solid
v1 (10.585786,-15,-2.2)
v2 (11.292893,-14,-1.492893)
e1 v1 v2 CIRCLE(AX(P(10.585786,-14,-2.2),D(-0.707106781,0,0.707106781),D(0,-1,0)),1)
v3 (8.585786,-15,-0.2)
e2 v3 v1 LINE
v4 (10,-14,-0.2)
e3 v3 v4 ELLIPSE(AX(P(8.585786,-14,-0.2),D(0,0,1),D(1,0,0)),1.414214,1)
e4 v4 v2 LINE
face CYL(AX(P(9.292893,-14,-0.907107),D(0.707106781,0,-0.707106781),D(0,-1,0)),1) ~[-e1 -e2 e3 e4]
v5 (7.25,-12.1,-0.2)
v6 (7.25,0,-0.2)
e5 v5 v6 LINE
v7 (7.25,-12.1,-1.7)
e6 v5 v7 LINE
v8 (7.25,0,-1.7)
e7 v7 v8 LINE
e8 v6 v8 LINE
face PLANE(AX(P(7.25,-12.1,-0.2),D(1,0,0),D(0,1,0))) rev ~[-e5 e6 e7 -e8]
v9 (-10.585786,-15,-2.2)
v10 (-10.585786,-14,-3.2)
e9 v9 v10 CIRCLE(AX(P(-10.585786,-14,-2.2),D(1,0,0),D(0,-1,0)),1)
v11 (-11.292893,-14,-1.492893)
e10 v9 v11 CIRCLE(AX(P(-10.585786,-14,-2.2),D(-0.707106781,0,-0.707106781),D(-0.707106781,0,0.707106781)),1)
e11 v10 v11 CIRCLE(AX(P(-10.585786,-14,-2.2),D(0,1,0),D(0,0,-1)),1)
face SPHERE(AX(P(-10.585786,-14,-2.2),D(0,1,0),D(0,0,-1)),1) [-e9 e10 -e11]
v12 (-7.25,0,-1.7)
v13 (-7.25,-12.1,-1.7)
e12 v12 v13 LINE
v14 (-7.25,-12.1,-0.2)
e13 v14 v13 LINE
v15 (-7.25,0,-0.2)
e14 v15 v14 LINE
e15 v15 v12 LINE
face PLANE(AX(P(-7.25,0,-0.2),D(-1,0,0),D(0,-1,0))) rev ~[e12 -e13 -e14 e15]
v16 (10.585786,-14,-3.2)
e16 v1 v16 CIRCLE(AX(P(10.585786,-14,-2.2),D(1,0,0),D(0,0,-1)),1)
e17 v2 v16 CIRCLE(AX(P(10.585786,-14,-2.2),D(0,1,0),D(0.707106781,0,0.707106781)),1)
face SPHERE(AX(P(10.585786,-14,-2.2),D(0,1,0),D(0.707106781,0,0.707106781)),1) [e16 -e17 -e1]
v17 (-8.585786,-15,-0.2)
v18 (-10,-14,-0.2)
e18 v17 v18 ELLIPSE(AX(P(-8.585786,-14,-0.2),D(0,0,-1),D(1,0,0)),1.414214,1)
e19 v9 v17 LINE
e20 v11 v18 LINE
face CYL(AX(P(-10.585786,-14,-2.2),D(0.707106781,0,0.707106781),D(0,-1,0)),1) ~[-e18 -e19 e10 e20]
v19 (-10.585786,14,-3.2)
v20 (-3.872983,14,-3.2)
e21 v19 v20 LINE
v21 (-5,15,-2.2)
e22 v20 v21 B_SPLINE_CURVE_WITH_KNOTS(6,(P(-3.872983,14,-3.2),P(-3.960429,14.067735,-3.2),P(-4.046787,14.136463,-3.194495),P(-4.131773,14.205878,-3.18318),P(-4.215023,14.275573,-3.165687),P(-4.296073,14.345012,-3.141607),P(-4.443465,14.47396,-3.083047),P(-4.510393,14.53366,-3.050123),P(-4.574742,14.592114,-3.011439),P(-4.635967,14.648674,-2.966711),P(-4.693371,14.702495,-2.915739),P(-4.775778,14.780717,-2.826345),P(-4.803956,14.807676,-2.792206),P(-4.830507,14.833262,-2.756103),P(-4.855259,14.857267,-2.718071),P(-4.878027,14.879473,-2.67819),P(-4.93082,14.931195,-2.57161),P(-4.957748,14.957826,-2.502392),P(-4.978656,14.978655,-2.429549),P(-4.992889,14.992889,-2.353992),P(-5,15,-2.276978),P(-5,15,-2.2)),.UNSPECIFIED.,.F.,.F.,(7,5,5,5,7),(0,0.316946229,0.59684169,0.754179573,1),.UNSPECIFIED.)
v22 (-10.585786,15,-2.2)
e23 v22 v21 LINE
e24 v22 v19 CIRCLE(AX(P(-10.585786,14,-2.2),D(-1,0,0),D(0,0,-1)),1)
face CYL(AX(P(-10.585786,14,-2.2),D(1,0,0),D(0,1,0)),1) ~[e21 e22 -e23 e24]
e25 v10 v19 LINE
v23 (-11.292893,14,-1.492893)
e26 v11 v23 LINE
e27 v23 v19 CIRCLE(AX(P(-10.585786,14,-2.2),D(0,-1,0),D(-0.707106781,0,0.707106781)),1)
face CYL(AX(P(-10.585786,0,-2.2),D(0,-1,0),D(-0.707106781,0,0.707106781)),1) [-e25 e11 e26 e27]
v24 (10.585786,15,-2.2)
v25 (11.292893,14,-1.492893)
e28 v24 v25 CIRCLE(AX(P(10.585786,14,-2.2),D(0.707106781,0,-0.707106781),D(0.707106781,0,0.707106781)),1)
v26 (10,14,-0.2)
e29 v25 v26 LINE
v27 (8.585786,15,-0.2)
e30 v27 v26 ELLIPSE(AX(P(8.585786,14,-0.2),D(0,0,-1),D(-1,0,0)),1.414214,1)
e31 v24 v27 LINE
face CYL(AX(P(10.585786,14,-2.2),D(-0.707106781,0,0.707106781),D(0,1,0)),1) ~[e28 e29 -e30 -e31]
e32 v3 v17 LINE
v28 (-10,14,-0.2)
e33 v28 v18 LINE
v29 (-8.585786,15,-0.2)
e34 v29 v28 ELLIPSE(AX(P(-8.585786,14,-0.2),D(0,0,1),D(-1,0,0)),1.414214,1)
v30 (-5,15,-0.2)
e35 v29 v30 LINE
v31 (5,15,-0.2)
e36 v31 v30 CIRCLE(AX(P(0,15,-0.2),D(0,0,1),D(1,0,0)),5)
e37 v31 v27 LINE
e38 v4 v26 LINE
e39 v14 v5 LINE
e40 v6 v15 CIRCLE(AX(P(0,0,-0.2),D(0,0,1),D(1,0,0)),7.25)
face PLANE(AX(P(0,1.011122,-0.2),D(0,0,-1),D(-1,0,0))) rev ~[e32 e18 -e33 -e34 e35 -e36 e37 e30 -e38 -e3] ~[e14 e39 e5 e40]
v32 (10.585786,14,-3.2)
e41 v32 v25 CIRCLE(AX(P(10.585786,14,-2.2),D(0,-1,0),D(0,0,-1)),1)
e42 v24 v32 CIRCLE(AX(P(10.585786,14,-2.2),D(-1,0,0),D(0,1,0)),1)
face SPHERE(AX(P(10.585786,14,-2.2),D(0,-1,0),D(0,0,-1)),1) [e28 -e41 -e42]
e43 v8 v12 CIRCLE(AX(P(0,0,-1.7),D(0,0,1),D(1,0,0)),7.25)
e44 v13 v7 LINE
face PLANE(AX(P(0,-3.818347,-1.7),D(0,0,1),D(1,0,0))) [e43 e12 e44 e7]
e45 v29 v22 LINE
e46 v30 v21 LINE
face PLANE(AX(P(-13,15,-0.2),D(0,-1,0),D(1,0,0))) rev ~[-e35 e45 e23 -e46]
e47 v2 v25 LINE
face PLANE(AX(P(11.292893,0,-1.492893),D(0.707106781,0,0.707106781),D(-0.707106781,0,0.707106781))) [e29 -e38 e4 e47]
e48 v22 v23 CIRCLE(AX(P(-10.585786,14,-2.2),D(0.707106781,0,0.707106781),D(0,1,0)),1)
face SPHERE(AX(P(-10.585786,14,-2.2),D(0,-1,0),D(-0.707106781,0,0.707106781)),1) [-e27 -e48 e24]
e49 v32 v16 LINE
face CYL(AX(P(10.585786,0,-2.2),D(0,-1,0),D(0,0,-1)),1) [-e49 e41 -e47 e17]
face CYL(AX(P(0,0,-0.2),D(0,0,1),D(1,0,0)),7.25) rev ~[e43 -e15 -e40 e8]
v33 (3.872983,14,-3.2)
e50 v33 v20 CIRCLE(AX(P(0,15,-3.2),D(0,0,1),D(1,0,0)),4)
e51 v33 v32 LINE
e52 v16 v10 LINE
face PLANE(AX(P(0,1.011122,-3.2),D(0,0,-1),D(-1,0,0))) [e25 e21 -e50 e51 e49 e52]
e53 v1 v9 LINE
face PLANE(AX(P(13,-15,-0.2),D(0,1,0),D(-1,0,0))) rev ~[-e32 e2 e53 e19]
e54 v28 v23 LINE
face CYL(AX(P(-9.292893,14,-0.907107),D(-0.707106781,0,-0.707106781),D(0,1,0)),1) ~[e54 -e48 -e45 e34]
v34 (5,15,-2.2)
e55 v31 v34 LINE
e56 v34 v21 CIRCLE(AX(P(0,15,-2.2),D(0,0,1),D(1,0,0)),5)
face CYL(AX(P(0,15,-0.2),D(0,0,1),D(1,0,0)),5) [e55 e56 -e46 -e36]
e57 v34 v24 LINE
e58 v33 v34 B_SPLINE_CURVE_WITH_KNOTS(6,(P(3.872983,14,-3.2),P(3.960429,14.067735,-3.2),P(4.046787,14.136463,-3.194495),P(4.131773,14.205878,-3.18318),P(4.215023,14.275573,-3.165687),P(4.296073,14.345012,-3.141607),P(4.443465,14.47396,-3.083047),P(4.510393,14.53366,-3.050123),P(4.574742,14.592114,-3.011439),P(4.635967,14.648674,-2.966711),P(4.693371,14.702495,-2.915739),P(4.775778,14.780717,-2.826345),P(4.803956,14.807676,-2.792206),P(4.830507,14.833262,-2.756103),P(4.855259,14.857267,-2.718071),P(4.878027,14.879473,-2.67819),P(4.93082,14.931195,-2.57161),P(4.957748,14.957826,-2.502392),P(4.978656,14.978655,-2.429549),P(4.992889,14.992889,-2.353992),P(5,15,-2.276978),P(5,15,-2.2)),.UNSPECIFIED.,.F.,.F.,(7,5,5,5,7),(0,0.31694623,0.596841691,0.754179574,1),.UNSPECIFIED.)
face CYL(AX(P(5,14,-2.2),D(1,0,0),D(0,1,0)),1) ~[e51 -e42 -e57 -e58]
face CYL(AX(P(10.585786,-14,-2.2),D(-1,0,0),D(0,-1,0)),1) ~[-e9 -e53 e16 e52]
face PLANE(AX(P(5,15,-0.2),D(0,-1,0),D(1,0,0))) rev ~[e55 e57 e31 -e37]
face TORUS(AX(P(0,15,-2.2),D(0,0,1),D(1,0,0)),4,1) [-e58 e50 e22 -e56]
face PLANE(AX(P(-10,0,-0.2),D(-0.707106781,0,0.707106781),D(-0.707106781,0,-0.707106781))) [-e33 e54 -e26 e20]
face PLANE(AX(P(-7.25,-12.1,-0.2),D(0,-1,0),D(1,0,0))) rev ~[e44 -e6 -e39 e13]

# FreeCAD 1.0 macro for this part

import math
import FreeCAD as App
import Part
import Sketcher

V = App.Vector


def edges_at(feature, points):
    """Names of the edges that pass closest to the given points."""
    edges = feature.Shape.Edges
    near = lambda p: min(range(len(edges)), key=lambda i: edges[i].distToShape(Part.Vertex(*p))[0])
    return sorted({f"Edge{near(p) + 1}" for p in points})


def add_polygon(sketch, points):
    """Adds a closed chain of lines whose ends are joined by coincident constraints."""
    first, n = sketch.GeometryCount, len(points)
    for a, b in zip(points, points[1:] + points[:1]):
        sketch.addGeometry(Part.LineSegment(App.Vector(*a, 0), App.Vector(*b, 0)), False)
    for i in range(n):
        sketch.addConstraint(Sketcher.Constraint("Coincident", first + i, 2, first + (i + 1) % n, 1))

doc = App.newDocument("Part")
body = doc.addObject("PartDesign::Body", "Body")

# Sketch on XY plane
sketch1 = doc.addObject("Sketcher::SketchObject", "Sketch")
body.addObject(sketch1)
sketch1.AttachmentSupport = (doc.XY_Plane, [""])
sketch1.MapMode = "FlatFace"
sketch1.addGeometry([
    Part.LineSegment(V(-5, 15, 0), V(-13, 15, 0)),  # 0
    Part.LineSegment(V(-13, 15, 0), V(-13, -15, 0)),  # 1
    Part.LineSegment(V(-13, -15, 0), V(13, -15, 0)),  # 2
    Part.LineSegment(V(13, -15, 0), V(13, 15, 0)),  # 3
    Part.LineSegment(V(13, 15, 0), V(5, 15, 0)),  # 4
    Part.ArcOfCircle(Part.Circle(V(0, 15, 0), V(0, 0, 1), 5), math.radians(0), math.radians(180)),  # 5
], False)
sketch1.addConstraint([
    Sketcher.Constraint("Coincident", 0, 2, 1, 1),
    Sketcher.Constraint("Coincident", 1, 2, 2, 1),
    Sketcher.Constraint("Coincident", 2, 2, 3, 1),
    Sketcher.Constraint("Coincident", 3, 2, 4, 1),
    Sketcher.Constraint("Coincident", 4, 2, 5, 1),
    Sketcher.Constraint("Coincident", 5, 2, 0, 1),
    Sketcher.Constraint("Horizontal", 0),
    Sketcher.Constraint("Vertical", 1),
    Sketcher.Constraint("Horizontal", 2),
    Sketcher.Constraint("Vertical", 3),
    Sketcher.Constraint("Horizontal", 4),
    Sketcher.Constraint("Symmetric", 0, 2, 2, 2, -1, 1),
    Sketcher.Constraint("Symmetric", 4, 2, 5, 2, -2),
    Sketcher.Constraint("Horizontal", 5, 3, 0, 2),
    Sketcher.Constraint("Radius", 5, 5.0),
    Sketcher.Constraint("DistanceX", 0, 2, 0, 1, 8.0),
    Sketcher.Constraint("DistanceY", 1, 2, 1, 1, 30.0),
])
pad1 = doc.addObject("PartDesign::Pad", "Pad")
body.addObject(pad1)
pad1.Profile = sketch1
pad1.Length = 3
pad1.Reversed = True

# Sketch on XY plane
sketch2 = doc.addObject("Sketcher::SketchObject", "Sketch001")
body.addObject(sketch2)
sketch2.AttachmentSupport = (doc.XY_Plane, [""])
sketch2.MapMode = "FlatFace"
sketch2.addGeometry([
    Part.ArcOfCircle(Part.Circle(V(0, 0, 0), V(0, 0, 1), 7), math.radians(0), math.radians(180)),
    Part.LineSegment(V(-7, 0, 0), V(-7, -12, 0)),
    Part.LineSegment(V(-7, -12, 0), V(7, -12, 0)),
    Part.LineSegment(V(7, -12, 0), V(7, 0, 0)),
], False)
sketch2.addConstraint([
    Sketcher.Constraint("Tangent", 0, 2, 1, 1),
    Sketcher.Constraint("Coincident", 1, 2, 2, 1),
    Sketcher.Constraint("Coincident", 2, 2, 3, 1),
    Sketcher.Constraint("Tangent", 3, 2, 0, 1),
    Sketcher.Constraint("Vertical", 1),
    Sketcher.Constraint("Horizontal", 2),
    Sketcher.Constraint("Vertical", 3),
    Sketcher.Constraint("Coincident", 0, 3, -1, 1),
    Sketcher.Constraint("Radius", 0, 7.25),
    Sketcher.Constraint("DistanceY", 1, 2, 1, 1, 12.1),
])
pocket1 = doc.addObject("PartDesign::Pocket", "Pocket")
body.addObject(pocket1)
pocket1.Profile = sketch2
pocket1.Length = 1.5

# Sketch on XZ plane
sketch3 = doc.addObject("Sketcher::SketchObject", "Sketch002")
body.addObject(sketch3)
sketch3.AttachmentSupport = (doc.XZ_Plane, [""])
sketch3.MapMode = "FlatFace"
add_polygon(sketch3, [(-16.4, 4.4), (-16.4, -6.6), (16.3, -6.6), (16.3, 4.4)])  # lines 0-3
sketch3.addGeometry(Part.LineSegment(V(-10, 0, 0), V(10, 0, 0)), False)  # 4
sketch3.addGeometry(Part.LineSegment(V(10, 0, 0), V(11.3, -1.3, 0)), False)  # 5
sketch3.addGeometry(Part.ArcOfCircle(Part.Circle(V(10.6, -2, 0), V(0, 0, 1), 1), math.radians(-90), math.radians(45)), False)  # 6
sketch3.addGeometry(Part.LineSegment(V(10.6, -3, 0), V(-10.6, -3, 0)), False)  # 7
sketch3.addGeometry(Part.ArcOfCircle(Part.Circle(V(-10.6, -2, 0), V(0, 0, 1), 1), math.radians(135), math.radians(270)), False)  # 8
sketch3.addGeometry(Part.LineSegment(V(-11.3, -1.3, 0), V(-10, 0, 0)), False)  # 9
sketch3.addConstraint([
    Sketcher.Constraint("Coincident", 4, 2, 5, 1),
    Sketcher.Constraint("Tangent", 5, 2, 6, 2),
    Sketcher.Constraint("Tangent", 6, 1, 7, 1),
    Sketcher.Constraint("Tangent", 7, 2, 8, 2),
    Sketcher.Constraint("Tangent", 8, 1, 9, 1),
    Sketcher.Constraint("Coincident", 9, 2, 4, 1),
    Sketcher.Constraint("Vertical", 0),
    Sketcher.Constraint("Horizontal", 1),
    Sketcher.Constraint("Vertical", 2),
    Sketcher.Constraint("Horizontal", 3),
    Sketcher.Constraint("Horizontal", 4),
    Sketcher.Constraint("Horizontal", 7),
    Sketcher.Constraint("Equal", 6, 8),
    Sketcher.Constraint("Symmetric", 4, 2, 9, 2, -1, 1),
    Sketcher.Constraint("Perpendicular", 5, 9),
    Sketcher.Constraint("Horizontal", 5, 2, 8, 1),
    Sketcher.Constraint("Radius", 6, 1.0),
    Sketcher.Constraint("DistanceX", 4, 1, 4, 2, 20.0),
    Sketcher.Constraint("DistanceY", 6, 3, -1, 1, 2.0),
    Sketcher.Constraint("DistanceX", 1, 1, 1, 2, 32.687891),
    Sketcher.Constraint("DistanceX", 6, 3, 1, 2, 5.669501),
    Sketcher.Constraint("DistanceY", 0, 2, 0, 1, 10.975497),
    Sketcher.Constraint("DistanceY", 0, 2, -1, 1, 6.57712),
])
pocket2 = doc.addObject("PartDesign::Pocket", "Pocket001")
body.addObject(pocket2)
pocket2.Profile = sketch3
pocket2.Type = "ThroughAll"
pocket2.Midplane = True
doc.recompute()

fillet = doc.addObject("PartDesign::Fillet", "Fillet")
body.addObject(fillet)
fillet.Base = (pocket2, edges_at(pocket2, [
    (0, -15, -3),
    (0, 20, -3),
    (7.793, 15, -3),
    (-7.793, 15, -3),
]))
fillet.Radius = 1
body2 = doc.addObject("PartDesign::Body", "Body001")
doc.recompute()

body.Placement = App.Placement(V(0, 0, -0.2), App.Rotation(V(0, 0, 1), 0))
boolean = doc.addObject("PartDesign::Boolean", "Boolean")
body2.addObject(boolean)
boolean.Type = "Fuse"
boolean.addObjects([body])

doc.recompute()
